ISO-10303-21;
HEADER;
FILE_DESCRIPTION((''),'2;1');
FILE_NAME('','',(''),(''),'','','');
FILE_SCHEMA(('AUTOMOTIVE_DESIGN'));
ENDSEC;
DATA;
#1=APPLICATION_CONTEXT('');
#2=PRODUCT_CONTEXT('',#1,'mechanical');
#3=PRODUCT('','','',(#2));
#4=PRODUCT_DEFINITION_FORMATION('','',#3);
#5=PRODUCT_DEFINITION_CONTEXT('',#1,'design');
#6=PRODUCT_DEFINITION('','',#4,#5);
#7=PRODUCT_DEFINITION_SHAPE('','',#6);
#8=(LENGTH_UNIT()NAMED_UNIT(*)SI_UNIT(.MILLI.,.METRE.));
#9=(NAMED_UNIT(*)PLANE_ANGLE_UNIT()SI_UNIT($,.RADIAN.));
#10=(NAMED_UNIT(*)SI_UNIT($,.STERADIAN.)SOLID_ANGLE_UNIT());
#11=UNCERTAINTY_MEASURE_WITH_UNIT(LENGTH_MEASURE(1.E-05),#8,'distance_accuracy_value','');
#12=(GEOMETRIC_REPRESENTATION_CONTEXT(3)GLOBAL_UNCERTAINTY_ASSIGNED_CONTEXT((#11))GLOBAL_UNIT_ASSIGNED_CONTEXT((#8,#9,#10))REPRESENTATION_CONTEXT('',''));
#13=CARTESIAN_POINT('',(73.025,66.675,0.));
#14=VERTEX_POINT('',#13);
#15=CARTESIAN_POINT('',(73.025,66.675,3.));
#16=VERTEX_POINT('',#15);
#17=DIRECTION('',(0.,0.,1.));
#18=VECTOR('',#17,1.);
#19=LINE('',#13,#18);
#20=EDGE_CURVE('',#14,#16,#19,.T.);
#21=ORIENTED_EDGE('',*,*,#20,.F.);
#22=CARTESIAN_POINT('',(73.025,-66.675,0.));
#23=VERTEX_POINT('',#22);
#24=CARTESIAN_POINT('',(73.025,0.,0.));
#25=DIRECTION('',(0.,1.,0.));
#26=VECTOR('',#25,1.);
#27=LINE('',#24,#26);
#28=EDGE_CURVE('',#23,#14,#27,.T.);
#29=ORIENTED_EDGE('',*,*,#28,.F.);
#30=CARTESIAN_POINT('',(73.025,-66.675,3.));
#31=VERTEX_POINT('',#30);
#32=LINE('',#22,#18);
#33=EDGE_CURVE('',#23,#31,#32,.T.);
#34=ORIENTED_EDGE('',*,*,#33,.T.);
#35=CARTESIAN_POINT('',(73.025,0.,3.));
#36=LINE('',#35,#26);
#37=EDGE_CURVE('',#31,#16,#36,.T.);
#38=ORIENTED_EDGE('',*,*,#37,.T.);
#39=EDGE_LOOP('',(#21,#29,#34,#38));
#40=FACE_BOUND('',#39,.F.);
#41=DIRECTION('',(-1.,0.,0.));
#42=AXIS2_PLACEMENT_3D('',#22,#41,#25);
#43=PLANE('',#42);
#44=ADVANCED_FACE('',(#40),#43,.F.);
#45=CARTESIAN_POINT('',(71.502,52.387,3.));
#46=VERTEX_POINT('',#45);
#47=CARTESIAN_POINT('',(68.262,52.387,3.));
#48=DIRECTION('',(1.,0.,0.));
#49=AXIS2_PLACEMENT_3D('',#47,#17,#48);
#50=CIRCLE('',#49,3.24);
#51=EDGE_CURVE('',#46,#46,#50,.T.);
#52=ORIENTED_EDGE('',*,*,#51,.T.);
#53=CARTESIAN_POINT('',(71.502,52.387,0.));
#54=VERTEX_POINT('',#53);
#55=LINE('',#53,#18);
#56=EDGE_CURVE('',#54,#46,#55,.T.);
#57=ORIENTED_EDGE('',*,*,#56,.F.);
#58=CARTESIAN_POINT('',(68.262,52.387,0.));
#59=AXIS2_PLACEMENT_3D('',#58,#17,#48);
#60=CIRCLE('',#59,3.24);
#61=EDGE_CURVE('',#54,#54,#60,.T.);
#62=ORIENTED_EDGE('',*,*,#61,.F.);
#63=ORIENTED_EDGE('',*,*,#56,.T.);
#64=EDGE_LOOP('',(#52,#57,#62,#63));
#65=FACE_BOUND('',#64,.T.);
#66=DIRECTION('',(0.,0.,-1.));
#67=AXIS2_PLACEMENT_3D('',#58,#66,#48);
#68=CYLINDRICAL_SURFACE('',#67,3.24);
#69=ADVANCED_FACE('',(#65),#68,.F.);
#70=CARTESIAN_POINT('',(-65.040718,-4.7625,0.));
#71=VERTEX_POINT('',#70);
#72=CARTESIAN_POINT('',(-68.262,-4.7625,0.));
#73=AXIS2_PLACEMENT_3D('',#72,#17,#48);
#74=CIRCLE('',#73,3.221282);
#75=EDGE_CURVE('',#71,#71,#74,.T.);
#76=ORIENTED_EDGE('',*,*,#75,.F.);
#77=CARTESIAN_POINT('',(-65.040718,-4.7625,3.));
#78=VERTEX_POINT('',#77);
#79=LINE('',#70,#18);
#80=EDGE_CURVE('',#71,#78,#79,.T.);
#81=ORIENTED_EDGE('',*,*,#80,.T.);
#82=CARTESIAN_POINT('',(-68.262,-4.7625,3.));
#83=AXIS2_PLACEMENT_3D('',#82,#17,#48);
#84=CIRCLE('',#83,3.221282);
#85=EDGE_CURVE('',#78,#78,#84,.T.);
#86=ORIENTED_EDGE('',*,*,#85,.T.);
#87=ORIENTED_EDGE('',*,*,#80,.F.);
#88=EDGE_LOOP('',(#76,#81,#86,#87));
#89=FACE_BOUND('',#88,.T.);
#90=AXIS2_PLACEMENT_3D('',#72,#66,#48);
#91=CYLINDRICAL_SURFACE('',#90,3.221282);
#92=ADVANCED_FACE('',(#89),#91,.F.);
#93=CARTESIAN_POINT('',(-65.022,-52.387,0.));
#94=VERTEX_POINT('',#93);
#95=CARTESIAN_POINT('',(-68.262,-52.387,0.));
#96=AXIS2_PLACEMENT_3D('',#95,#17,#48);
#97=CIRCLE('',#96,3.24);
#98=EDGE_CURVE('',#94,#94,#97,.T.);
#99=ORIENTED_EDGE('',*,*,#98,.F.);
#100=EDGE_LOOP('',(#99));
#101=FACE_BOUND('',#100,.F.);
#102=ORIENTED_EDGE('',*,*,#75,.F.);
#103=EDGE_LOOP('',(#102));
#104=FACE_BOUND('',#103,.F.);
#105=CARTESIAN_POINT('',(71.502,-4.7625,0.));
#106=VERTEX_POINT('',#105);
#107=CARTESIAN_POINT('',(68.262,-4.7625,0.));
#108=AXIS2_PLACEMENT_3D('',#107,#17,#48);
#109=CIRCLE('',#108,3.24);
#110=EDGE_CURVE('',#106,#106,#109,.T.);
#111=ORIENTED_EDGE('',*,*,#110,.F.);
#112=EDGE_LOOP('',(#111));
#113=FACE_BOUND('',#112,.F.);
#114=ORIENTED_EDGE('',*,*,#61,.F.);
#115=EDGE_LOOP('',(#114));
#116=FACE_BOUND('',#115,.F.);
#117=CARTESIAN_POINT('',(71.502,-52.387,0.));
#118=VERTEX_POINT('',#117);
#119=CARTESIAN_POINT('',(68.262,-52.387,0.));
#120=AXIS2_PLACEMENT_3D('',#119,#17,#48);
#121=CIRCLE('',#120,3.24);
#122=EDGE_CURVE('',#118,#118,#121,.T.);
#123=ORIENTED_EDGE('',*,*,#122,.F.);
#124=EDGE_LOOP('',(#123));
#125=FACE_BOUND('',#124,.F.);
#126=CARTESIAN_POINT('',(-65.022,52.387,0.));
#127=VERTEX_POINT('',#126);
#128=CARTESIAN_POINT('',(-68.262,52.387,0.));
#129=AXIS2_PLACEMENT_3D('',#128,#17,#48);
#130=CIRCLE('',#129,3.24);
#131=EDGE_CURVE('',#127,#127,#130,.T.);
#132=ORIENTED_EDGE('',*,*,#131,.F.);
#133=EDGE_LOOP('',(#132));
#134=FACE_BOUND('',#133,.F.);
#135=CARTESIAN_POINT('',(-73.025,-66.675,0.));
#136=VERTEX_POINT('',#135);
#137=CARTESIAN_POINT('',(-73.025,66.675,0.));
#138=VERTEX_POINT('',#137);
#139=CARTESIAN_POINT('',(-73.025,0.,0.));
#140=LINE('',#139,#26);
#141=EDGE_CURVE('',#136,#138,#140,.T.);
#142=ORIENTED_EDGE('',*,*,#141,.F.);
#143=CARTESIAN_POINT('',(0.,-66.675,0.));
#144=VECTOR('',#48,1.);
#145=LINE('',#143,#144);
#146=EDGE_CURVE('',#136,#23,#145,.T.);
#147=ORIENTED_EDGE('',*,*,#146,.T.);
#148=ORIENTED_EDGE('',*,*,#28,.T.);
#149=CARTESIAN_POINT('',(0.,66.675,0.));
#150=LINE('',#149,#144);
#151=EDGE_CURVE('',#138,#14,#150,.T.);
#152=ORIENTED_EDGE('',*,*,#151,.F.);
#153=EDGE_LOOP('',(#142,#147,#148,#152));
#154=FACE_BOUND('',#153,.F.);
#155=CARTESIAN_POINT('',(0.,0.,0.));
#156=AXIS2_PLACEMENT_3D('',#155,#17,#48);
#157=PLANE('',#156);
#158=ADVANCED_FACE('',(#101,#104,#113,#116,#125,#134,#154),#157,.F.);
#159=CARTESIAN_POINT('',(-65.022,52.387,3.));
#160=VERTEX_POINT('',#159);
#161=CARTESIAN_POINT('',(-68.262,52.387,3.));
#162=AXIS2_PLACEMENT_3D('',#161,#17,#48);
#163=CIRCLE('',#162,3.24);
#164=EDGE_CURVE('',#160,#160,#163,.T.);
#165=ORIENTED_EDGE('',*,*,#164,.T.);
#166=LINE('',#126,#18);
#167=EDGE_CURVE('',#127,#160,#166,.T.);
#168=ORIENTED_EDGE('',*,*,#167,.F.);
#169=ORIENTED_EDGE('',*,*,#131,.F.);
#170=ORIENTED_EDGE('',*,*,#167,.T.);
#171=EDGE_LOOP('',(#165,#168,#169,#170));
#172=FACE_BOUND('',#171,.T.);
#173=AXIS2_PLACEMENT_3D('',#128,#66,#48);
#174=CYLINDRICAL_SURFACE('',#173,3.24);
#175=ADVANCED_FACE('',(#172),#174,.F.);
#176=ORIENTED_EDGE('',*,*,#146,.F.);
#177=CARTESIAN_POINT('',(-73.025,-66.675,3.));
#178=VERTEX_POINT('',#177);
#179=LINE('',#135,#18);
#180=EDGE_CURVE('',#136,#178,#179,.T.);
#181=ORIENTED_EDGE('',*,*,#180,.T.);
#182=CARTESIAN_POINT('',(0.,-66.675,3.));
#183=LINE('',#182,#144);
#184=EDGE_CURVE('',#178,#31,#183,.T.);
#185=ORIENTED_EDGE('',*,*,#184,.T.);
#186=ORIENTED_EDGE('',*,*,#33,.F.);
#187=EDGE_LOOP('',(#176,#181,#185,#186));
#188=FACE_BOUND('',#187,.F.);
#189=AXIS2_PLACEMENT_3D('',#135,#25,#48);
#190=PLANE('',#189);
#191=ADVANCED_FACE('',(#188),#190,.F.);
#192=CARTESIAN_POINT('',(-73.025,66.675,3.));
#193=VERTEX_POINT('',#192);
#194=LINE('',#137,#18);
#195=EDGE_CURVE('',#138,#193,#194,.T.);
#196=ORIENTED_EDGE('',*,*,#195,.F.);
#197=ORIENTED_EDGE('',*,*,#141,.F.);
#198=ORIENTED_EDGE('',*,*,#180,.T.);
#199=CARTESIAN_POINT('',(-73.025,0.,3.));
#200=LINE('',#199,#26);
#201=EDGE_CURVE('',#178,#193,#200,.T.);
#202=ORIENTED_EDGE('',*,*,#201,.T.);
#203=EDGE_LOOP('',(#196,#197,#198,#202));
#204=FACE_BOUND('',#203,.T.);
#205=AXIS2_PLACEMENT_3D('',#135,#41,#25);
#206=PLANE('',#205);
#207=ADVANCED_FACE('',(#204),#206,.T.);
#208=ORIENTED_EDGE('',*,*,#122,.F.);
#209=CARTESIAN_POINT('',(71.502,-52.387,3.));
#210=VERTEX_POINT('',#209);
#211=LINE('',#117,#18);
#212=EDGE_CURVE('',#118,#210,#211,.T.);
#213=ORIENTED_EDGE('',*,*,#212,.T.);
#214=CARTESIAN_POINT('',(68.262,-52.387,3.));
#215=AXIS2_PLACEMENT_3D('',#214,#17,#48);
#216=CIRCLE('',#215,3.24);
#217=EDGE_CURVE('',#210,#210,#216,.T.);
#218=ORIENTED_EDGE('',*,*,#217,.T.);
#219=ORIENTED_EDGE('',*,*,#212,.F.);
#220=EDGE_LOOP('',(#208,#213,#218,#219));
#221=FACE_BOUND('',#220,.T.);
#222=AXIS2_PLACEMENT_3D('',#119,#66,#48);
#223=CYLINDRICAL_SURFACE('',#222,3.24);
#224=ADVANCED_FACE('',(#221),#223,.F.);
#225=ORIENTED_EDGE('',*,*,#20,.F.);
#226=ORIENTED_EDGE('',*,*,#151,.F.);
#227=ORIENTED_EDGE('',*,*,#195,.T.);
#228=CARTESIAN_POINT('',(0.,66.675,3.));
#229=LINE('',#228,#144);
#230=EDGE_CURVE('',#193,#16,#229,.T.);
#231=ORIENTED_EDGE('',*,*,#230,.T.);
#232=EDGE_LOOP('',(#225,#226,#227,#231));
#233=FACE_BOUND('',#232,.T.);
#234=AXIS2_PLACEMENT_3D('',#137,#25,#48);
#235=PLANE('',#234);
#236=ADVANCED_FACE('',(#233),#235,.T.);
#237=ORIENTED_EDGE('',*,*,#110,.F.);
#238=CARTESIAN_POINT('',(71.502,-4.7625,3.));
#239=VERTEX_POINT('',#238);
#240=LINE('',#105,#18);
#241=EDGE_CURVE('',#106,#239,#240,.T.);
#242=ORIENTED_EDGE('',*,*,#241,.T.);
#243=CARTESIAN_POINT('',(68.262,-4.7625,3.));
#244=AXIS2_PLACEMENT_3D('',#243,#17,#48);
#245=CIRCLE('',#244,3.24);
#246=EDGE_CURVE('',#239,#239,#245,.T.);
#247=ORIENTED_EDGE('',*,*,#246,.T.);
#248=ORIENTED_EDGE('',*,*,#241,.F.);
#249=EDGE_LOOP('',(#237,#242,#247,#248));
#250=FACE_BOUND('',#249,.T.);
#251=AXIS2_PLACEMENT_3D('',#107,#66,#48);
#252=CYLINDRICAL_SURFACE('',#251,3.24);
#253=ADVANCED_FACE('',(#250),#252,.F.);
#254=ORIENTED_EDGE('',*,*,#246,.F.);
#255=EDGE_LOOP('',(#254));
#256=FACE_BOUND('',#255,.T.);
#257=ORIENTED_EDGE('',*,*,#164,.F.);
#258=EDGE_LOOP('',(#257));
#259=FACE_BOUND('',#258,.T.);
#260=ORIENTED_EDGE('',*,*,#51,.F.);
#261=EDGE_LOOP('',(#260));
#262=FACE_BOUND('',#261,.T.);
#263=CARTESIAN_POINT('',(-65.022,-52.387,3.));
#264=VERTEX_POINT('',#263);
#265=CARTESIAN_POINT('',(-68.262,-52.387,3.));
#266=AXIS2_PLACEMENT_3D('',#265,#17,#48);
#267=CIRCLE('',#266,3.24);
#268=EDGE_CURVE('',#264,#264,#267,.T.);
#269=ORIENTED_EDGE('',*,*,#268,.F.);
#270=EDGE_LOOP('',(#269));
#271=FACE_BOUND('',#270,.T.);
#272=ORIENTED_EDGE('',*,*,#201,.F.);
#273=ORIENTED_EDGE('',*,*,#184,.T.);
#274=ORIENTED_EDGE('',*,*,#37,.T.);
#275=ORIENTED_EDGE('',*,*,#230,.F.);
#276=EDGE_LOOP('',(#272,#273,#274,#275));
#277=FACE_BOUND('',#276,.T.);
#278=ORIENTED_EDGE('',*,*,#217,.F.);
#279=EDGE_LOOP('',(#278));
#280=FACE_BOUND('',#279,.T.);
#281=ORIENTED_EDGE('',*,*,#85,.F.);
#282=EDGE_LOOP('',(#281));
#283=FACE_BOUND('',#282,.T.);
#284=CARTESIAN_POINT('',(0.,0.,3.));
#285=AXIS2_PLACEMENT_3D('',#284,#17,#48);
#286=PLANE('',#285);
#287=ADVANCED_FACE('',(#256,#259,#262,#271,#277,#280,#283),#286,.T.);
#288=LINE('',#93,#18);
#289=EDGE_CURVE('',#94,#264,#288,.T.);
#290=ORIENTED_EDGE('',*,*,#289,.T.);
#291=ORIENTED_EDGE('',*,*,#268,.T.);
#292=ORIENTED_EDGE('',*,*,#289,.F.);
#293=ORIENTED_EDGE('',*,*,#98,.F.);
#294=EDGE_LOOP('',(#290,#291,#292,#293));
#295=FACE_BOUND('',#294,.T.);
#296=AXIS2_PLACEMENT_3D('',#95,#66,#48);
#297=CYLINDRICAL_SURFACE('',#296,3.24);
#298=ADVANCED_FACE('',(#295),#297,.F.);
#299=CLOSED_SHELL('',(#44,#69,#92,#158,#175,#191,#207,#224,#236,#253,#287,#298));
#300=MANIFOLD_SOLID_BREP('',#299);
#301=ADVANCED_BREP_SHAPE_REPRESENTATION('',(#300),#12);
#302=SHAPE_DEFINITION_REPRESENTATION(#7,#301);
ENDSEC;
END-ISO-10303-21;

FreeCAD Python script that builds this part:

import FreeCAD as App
import Part
import Sketcher
Q = App.Units.Quantity


def add_polygon(sketch, points):
    """Adds a closed chain of lines whose ends are joined by coincident constraints."""
    first, n = sketch.GeometryCount, len(points)
    for a, b in zip(points, points[1:] + points[:1]):
        sketch.addGeometry(Part.LineSegment(App.Vector(*a, 0), App.Vector(*b, 0)), False)
    for i in range(n):
        sketch.addConstraint(Sketcher.Constraint("Coincident", first + i, 2, first + (i + 1) % n, 1))

doc = App.newDocument("Part")
body = doc.addObject("PartDesign::Body", "Body")

# Sketch on XY plane
sketch1 = doc.addObject("Sketcher::SketchObject", "Sketch")
body.addObject(sketch1)
sketch1.AttachmentSupport = (doc.XY_Plane, [""])
sketch1.MapMode = "FlatFace"
add_polygon(sketch1, [(-73, 66.7), (-73, -66.7), (73, -66.7), (73, 66.7)])  # lines 0-3
sketch1.addGeometry(Part.Circle(App.Vector(-68.3, -52.4, 0), App.Vector(0, 0, 1), 3.2), False)  # 4
sketch1.addGeometry(Part.Circle(App.Vector(-68.3, -4.8, 0), App.Vector(0, 0, 1), 3.2), False)  # 5
sketch1.addGeometry(Part.Circle(App.Vector(68.3, -52.4, 0), App.Vector(0, 0, 1), 3.2), False)  # 6
sketch1.addGeometry(Part.Circle(App.Vector(68.3, -4.8, 0), App.Vector(0, 0, 1), 3.2), False)  # 7
sketch1.addGeometry(Part.Circle(App.Vector(-68.3, 52.4, 0), App.Vector(0, 0, 1), 3.2), False)  # 8
sketch1.addGeometry(Part.Circle(App.Vector(68.3, 52.4, 0), App.Vector(0, 0, 1), 3.2), False)  # 9
sketch1.addConstraint(Sketcher.Constraint("Vertical", 0))
sketch1.addConstraint(Sketcher.Constraint("Horizontal", 1))
sketch1.addConstraint(Sketcher.Constraint("Vertical", 2))
sketch1.addConstraint(Sketcher.Constraint("Horizontal", 3))
sketch1.addConstraint(Sketcher.Constraint("Equal", 4, 6))
sketch1.addConstraint(Sketcher.Constraint("Equal", 6, 7))
sketch1.addConstraint(Sketcher.Constraint("Equal", 7, 8))
sketch1.addConstraint(Sketcher.Constraint("Equal", 8, 9))
sketch1.addConstraint(Sketcher.Constraint("Symmetric", 6, 3, 8, 3, -1, 1))
sketch1.addConstraint(Sketcher.Constraint("Symmetric", 4, 3, 9, 3, -1, 1))
sketch1.addConstraint(Sketcher.Constraint("Symmetric", 0, 2, 2, 2, -1, 1))
sketch1.addConstraint(Sketcher.Constraint("Symmetric", 4, 3, 6, 3, -2))
sketch1.addConstraint(Sketcher.Constraint("Symmetric", 5, 3, 7, 3, -2))
sketch1.addConstraint(Sketcher.Constraint("Vertical", 4, 3, 5, 3))
sketch1.addConstraint(Sketcher.Constraint("DistanceX", 1, 1, 1, 2, Q("5.75 in")))
sketch1.addConstraint(Sketcher.Constraint("DistanceY", 0, 2, 0, 1, Q("5.25 in")))
sketch1.addConstraint(Sketcher.Constraint("Diameter", 4, Q("6.48 mm")))
sketch1.addConstraint(Sketcher.Constraint("DistanceY", 5, 3, -1, 1, Q("0.1875 in")))
sketch1.addConstraint(Sketcher.Constraint("Diameter", 5, Q("6.442564 mm")))
sketch1.addConstraint(Sketcher.Constraint("DistanceX", 4, 3, -1, 1, Q("68.262 mm")))
sketch1.addConstraint(Sketcher.Constraint("DistanceY", 4, 3, -1, 1, Q("52.387 mm")))
pad1 = doc.addObject("PartDesign::Pad", "Pad")
body.addObject(pad1)
pad1.Profile = sketch1
pad1.Length = 3

doc.recompute()
